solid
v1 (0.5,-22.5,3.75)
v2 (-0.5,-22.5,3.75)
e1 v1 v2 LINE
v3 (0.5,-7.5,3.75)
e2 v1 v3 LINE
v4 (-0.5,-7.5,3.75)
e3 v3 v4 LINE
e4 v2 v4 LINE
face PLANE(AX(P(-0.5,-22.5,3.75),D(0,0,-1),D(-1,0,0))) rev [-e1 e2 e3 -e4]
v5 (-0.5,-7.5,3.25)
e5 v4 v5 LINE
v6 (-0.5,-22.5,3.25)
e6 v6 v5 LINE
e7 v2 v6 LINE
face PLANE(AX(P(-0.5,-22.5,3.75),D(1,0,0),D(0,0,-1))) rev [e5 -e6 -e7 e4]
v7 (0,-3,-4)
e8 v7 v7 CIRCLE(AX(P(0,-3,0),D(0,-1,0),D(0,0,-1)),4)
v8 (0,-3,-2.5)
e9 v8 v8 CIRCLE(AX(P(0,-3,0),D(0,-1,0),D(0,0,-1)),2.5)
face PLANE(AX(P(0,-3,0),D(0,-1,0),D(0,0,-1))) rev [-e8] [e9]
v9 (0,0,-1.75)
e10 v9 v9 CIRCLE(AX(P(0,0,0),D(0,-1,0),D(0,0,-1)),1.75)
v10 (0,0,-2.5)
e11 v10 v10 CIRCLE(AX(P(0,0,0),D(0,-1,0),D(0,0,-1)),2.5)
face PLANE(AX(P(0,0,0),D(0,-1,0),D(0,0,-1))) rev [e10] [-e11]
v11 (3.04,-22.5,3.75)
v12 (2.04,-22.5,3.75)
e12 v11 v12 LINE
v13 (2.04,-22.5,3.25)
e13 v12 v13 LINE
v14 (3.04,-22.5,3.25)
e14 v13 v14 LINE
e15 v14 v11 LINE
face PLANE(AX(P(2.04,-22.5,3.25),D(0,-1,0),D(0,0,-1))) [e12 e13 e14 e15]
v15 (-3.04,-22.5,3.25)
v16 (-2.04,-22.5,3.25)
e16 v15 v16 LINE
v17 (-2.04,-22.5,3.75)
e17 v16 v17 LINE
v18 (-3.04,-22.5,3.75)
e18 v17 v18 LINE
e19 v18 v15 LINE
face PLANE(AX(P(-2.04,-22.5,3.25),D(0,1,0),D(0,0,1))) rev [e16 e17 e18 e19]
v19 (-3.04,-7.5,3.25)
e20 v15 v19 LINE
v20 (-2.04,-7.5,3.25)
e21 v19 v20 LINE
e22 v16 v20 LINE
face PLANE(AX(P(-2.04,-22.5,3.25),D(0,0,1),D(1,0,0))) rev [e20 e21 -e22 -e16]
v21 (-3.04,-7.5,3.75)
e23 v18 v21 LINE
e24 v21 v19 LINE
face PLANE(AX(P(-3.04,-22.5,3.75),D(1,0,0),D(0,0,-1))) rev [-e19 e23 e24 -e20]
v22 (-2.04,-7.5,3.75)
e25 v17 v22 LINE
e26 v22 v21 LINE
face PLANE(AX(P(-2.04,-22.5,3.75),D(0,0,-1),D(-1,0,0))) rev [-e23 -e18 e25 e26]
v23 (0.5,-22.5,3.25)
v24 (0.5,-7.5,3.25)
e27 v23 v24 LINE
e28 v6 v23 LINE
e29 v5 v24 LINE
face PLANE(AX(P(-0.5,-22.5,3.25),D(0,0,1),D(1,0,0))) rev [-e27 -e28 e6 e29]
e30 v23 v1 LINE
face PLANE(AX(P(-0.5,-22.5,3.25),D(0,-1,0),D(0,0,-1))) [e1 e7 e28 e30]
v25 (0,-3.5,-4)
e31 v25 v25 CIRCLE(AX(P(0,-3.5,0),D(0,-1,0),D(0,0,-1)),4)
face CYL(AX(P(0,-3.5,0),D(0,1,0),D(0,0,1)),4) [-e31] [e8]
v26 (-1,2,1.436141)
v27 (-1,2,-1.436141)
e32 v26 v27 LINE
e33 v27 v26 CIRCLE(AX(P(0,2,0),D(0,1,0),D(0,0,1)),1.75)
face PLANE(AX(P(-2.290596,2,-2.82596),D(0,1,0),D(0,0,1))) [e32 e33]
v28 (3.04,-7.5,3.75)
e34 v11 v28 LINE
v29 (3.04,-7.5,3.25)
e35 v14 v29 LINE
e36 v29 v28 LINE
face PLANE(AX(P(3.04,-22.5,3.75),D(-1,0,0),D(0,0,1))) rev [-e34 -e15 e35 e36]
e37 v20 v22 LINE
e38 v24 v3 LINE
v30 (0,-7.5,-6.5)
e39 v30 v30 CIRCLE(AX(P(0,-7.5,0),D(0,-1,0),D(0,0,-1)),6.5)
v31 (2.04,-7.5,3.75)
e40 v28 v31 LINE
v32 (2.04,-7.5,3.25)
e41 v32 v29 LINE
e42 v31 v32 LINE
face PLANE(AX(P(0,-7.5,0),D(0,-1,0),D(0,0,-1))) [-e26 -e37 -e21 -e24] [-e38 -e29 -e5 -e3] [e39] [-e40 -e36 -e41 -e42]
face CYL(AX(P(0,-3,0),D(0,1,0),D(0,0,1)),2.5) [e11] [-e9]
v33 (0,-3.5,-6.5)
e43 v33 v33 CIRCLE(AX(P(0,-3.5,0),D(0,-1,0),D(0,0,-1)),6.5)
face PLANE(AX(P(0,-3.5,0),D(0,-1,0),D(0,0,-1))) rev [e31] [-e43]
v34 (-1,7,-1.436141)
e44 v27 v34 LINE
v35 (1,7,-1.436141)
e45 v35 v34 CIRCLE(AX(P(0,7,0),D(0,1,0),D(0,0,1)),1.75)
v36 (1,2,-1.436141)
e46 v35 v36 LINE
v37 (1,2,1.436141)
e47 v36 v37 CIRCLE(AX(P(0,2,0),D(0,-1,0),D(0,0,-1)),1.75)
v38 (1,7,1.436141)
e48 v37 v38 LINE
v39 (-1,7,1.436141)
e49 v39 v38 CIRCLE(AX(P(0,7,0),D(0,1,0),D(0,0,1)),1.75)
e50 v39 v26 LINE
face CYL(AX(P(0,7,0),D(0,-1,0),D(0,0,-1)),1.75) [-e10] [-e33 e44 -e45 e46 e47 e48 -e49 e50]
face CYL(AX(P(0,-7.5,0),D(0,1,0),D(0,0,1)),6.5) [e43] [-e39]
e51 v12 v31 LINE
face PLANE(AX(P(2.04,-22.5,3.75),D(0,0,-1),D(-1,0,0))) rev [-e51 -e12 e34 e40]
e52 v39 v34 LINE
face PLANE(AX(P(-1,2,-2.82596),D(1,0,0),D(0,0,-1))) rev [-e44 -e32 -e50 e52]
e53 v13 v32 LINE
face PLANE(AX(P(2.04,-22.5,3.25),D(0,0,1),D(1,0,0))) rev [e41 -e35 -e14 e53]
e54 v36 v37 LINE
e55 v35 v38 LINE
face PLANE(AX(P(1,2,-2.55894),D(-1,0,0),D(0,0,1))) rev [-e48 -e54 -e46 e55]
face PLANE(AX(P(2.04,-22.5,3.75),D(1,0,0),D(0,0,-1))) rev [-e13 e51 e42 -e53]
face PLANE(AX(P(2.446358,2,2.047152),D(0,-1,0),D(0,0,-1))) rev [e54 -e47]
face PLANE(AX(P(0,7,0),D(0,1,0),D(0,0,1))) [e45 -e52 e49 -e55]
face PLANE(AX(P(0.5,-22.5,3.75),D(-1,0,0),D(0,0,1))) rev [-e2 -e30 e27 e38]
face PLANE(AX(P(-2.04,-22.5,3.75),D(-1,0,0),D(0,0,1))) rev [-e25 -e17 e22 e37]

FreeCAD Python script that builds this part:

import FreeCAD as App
import Part
import Sketcher

V = App.Vector

doc = App.newDocument("Part")
body = doc.addObject("PartDesign::Body", "Body")

# Sketch on XZ plane
sketch1 = body.newObject("Sketcher::SketchObject", "Sketch")
sketch1.AttachmentSupport = (doc.getObject("XZ_Plane"), [""])
sketch1.MapMode = "FlatFace"
sketch1.addGeometry(Part.Circle(V(0, 0, 0), V(0, 0, 1), 1.8), False)
sketch1.addConstraint([
    Sketcher.Constraint("Coincident", 0, 3, -1, 1),
    Sketcher.Constraint("Diameter", 0, 3.5),
])
pad1 = body.newObject("PartDesign::Pad", "Pad")
pad1.Profile = sketch1
pad1.Length = 7
pad1.Reversed = True

# Sketch on XZ plane
sketch2 = body.newObject("Sketcher::SketchObject", "Sketch001")
sketch2.AttachmentSupport = (doc.getObject("XZ_Plane"), [""])
sketch2.MapMode = "FlatFace"
sketch2.AttachmentOffset = App.Placement(V(0, 0, -7), App.Rotation())
sketch2.addGeometry([
    Part.LineSegment(V(-2.3, -2.8, 0), V(-2.3, 1.9, 0)),  # 0
    Part.LineSegment(V(-2.3, 1.9, 0), V(-1, 1.9, 0)),  # 1
    Part.LineSegment(V(-1, 1.9, 0), V(-1, -2.8, 0)),  # 2
    Part.LineSegment(V(-1, -2.8, 0), V(-2.3, -2.8, 0)),  # 3
    Part.LineSegment(V(1, -2.6, 0), V(1, 2, 0)),  # 4
    Part.LineSegment(V(1, 2, 0), V(2.4, 2, 0)),  # 5
    Part.LineSegment(V(2.4, 2, 0), V(2.4, -2.6, 0)),  # 6
    Part.LineSegment(V(2.4, -2.6, 0), V(1, -2.6, 0)),  # 7
], False)
sketch2.addConstraint([
    Sketcher.Constraint("Coincident", 0, 2, 1, 1),
    Sketcher.Constraint("Coincident", 1, 2, 2, 1),
    Sketcher.Constraint("Coincident", 2, 2, 3, 1),
    Sketcher.Constraint("Coincident", 3, 2, 0, 1),
    Sketcher.Constraint("Coincident", 4, 2, 5, 1),
    Sketcher.Constraint("Coincident", 5, 2, 6, 1),
    Sketcher.Constraint("Coincident", 6, 2, 7, 1),
    Sketcher.Constraint("Coincident", 7, 2, 4, 1),
    Sketcher.Constraint("Vertical", 0),
    Sketcher.Constraint("Horizontal", 1),
    Sketcher.Constraint("Vertical", 2),
    Sketcher.Constraint("Horizontal", 3),
    Sketcher.Constraint("Vertical", 4),
    Sketcher.Constraint("Horizontal", 5),
    Sketcher.Constraint("Vertical", 6),
    Sketcher.Constraint("Horizontal", 7),
    Sketcher.Constraint("DistanceX", 1, 2, -1, 1, 1.0),
    Sketcher.Constraint("DistanceX", -1, 1, 4, 2, 1.0),
    Sketcher.Constraint("DistanceY", 0, 1, 0, 2, 4.717351),
    Sketcher.Constraint("DistanceX", 1, 1, 1, 2, 1.290596),
    Sketcher.Constraint("DistanceX", 5, 1, 5, 2, 1.446358),
    Sketcher.Constraint("DistanceY", 4, 1, 4, 2, 4.606093),
    Sketcher.Constraint("DistanceY", -1, 1, 0, 2, 1.891391),
    Sketcher.Constraint("DistanceY", 6, 2, -1, 1, 2.55894),
])
pocket1 = body.newObject("PartDesign::Pocket", "Pocket")
pocket1.Profile = sketch2
pocket1.Length = 5
pocket1.Reversed = True

# Sketch on XZ plane
sketch3 = body.newObject("Sketcher::SketchObject", "Sketch002")
sketch3.AttachmentSupport = (doc.getObject("XZ_Plane"), [""])
sketch3.MapMode = "FlatFace"
sketch3.addGeometry(Part.Circle(V(0, 0, 0), V(0, 0, 1), 2.5), False)
sketch3.addConstraint([
    Sketcher.Constraint("Coincident", 0, 3, -1, 1),
    Sketcher.Constraint("Diameter", 0, 5.0),
])
pad2 = body.newObject("PartDesign::Pad", "Pad001")
pad2.Profile = sketch3
pad2.Length = 3

# Sketch on XZ plane
sketch4 = body.newObject("Sketcher::SketchObject", "Sketch003")
sketch4.AttachmentSupport = (doc.getObject("XZ_Plane"), [""])
sketch4.MapMode = "FlatFace"
sketch4.AttachmentOffset = App.Placement(V(0, 0, 3), App.Rotation())
sketch4.addGeometry(Part.Circle(V(0, 0, 0), V(0, 0, 1), 4), False)
sketch4.addConstraint([
    Sketcher.Constraint("Coincident", 0, 3, -1, 1),
    Sketcher.Constraint("Diameter", 0, 8.0),
])
pad3 = body.newObject("PartDesign::Pad", "Pad002")
pad3.Profile = sketch4
pad3.Length = 0.5

# Sketch on XZ plane
sketch5 = body.newObject("Sketcher::SketchObject", "Sketch004")
sketch5.AttachmentSupport = (doc.getObject("XZ_Plane"), [""])
sketch5.MapMode = "FlatFace"
sketch5.AttachmentOffset = App.Placement(V(0, 0, 3.5), App.Rotation())
sketch5.addGeometry(Part.Circle(V(0, 0, 0), V(0, 0, 1), 6), False)
sketch5.addConstraint([
    Sketcher.Constraint("Coincident", 0, 3, -1, 1),
    Sketcher.Constraint("Diameter", 0, 13.0),
])
pad4 = body.newObject("PartDesign::Pad", "Pad003")
pad4.Profile = sketch5
pad4.Length = 4

# Sketch on XZ plane
sketch6 = body.newObject("Sketcher::SketchObject", "Sketch005")
sketch6.AttachmentSupport = (doc.getObject("XZ_Plane"), [""])
sketch6.MapMode = "FlatFace"
sketch6.AttachmentOffset = App.Placement(V(0, 0, 7.5), App.Rotation())
sketch6.addGeometry([
    Part.LineSegment(V(-0.5, 3.8, 0), V(-0.5, 3.2, 0)),  # 0
    Part.LineSegment(V(-0.5, 3.2, 0), V(0.5, 3.2, 0)),  # 1
    Part.LineSegment(V(0.5, 3.2, 0), V(0.5, 3.8, 0)),  # 2
    Part.LineSegment(V(0.5, 3.8, 0), V(-0.5, 3.8, 0)),  # 3
    Part.LineSegment(V(2, 3.8, 0), V(2, 3.2, 0)),  # 4
    Part.LineSegment(V(2, 3.2, 0), V(3, 3.2, 0)),  # 5
    Part.LineSegment(V(3, 3.2, 0), V(3, 3.8, 0)),  # 6
    Part.LineSegment(V(3, 3.8, 0), V(2, 3.8, 0)),  # 7
    Part.LineSegment(V(-3, 3.8, 0), V(-3, 3.2, 0)),  # 8
    Part.LineSegment(V(-3, 3.2, 0), V(-2, 3.2, 0)),  # 9
    Part.LineSegment(V(-2, 3.2, 0), V(-2, 3.8, 0)),  # 10
    Part.LineSegment(V(-2, 3.8, 0), V(-3, 3.8, 0)),  # 11
], False)
sketch6.addConstraint([
    Sketcher.Constraint("Coincident", 0, 2, 1, 1),
    Sketcher.Constraint("Coincident", 1, 2, 2, 1),
    Sketcher.Constraint("Coincident", 2, 2, 3, 1),
    Sketcher.Constraint("Coincident", 3, 2, 0, 1),
    Sketcher.Constraint("Coincident", 4, 2, 5, 1),
    Sketcher.Constraint("Coincident", 5, 2, 6, 1),
    Sketcher.Constraint("Coincident", 6, 2, 7, 1),
    Sketcher.Constraint("Coincident", 7, 2, 4, 1),
    Sketcher.Constraint("Coincident", 8, 2, 9, 1),
    Sketcher.Constraint("Coincident", 9, 2, 10, 1),
    Sketcher.Constraint("Coincident", 10, 2, 11, 1),
    Sketcher.Constraint("Coincident", 11, 2, 8, 1),
    Sketcher.Constraint("Vertical", 0),
    Sketcher.Constraint("Horizontal", 1),
    Sketcher.Constraint("Vertical", 2),
    Sketcher.Constraint("Horizontal", 3),
    Sketcher.Constraint("Vertical", 4),
    Sketcher.Constraint("Horizontal", 5),
    Sketcher.Constraint("Vertical", 6),
    Sketcher.Constraint("Horizontal", 7),
    Sketcher.Constraint("Vertical", 8),
    Sketcher.Constraint("Horizontal", 9),
    Sketcher.Constraint("Vertical", 10),
    Sketcher.Constraint("Horizontal", 11),
    Sketcher.Constraint("Symmetric", 5, 2, 8, 2, -2),
    Sketcher.Constraint("Symmetric", 7, 2, 10, 2, -2),
    Sketcher.Constraint("Horizontal", 1, 2, 4, 2),
    Sketcher.Constraint("Horizontal", 3, 2, 6, 2),
    Sketcher.Constraint("Equal", 3, 5),
    Sketcher.Constraint("DistanceX", 1, 1, 1, 2, 1.0),
    Sketcher.Constraint("DistanceY", 0, 2, 0, 1, 0.5),
    Sketcher.Constraint("DistanceX", 0, 2, -1, 1, 0.5),
    Sketcher.Constraint("DistanceY", -1, 1, 0, 2, 3.25),
    Sketcher.Constraint("DistanceX", -1, 1, 4, 2, 2.04),
])
pad5 = body.newObject("PartDesign::Pad", "Pad004")
pad5.Profile = sketch6
pad5.Length = 15

doc.recompute()
